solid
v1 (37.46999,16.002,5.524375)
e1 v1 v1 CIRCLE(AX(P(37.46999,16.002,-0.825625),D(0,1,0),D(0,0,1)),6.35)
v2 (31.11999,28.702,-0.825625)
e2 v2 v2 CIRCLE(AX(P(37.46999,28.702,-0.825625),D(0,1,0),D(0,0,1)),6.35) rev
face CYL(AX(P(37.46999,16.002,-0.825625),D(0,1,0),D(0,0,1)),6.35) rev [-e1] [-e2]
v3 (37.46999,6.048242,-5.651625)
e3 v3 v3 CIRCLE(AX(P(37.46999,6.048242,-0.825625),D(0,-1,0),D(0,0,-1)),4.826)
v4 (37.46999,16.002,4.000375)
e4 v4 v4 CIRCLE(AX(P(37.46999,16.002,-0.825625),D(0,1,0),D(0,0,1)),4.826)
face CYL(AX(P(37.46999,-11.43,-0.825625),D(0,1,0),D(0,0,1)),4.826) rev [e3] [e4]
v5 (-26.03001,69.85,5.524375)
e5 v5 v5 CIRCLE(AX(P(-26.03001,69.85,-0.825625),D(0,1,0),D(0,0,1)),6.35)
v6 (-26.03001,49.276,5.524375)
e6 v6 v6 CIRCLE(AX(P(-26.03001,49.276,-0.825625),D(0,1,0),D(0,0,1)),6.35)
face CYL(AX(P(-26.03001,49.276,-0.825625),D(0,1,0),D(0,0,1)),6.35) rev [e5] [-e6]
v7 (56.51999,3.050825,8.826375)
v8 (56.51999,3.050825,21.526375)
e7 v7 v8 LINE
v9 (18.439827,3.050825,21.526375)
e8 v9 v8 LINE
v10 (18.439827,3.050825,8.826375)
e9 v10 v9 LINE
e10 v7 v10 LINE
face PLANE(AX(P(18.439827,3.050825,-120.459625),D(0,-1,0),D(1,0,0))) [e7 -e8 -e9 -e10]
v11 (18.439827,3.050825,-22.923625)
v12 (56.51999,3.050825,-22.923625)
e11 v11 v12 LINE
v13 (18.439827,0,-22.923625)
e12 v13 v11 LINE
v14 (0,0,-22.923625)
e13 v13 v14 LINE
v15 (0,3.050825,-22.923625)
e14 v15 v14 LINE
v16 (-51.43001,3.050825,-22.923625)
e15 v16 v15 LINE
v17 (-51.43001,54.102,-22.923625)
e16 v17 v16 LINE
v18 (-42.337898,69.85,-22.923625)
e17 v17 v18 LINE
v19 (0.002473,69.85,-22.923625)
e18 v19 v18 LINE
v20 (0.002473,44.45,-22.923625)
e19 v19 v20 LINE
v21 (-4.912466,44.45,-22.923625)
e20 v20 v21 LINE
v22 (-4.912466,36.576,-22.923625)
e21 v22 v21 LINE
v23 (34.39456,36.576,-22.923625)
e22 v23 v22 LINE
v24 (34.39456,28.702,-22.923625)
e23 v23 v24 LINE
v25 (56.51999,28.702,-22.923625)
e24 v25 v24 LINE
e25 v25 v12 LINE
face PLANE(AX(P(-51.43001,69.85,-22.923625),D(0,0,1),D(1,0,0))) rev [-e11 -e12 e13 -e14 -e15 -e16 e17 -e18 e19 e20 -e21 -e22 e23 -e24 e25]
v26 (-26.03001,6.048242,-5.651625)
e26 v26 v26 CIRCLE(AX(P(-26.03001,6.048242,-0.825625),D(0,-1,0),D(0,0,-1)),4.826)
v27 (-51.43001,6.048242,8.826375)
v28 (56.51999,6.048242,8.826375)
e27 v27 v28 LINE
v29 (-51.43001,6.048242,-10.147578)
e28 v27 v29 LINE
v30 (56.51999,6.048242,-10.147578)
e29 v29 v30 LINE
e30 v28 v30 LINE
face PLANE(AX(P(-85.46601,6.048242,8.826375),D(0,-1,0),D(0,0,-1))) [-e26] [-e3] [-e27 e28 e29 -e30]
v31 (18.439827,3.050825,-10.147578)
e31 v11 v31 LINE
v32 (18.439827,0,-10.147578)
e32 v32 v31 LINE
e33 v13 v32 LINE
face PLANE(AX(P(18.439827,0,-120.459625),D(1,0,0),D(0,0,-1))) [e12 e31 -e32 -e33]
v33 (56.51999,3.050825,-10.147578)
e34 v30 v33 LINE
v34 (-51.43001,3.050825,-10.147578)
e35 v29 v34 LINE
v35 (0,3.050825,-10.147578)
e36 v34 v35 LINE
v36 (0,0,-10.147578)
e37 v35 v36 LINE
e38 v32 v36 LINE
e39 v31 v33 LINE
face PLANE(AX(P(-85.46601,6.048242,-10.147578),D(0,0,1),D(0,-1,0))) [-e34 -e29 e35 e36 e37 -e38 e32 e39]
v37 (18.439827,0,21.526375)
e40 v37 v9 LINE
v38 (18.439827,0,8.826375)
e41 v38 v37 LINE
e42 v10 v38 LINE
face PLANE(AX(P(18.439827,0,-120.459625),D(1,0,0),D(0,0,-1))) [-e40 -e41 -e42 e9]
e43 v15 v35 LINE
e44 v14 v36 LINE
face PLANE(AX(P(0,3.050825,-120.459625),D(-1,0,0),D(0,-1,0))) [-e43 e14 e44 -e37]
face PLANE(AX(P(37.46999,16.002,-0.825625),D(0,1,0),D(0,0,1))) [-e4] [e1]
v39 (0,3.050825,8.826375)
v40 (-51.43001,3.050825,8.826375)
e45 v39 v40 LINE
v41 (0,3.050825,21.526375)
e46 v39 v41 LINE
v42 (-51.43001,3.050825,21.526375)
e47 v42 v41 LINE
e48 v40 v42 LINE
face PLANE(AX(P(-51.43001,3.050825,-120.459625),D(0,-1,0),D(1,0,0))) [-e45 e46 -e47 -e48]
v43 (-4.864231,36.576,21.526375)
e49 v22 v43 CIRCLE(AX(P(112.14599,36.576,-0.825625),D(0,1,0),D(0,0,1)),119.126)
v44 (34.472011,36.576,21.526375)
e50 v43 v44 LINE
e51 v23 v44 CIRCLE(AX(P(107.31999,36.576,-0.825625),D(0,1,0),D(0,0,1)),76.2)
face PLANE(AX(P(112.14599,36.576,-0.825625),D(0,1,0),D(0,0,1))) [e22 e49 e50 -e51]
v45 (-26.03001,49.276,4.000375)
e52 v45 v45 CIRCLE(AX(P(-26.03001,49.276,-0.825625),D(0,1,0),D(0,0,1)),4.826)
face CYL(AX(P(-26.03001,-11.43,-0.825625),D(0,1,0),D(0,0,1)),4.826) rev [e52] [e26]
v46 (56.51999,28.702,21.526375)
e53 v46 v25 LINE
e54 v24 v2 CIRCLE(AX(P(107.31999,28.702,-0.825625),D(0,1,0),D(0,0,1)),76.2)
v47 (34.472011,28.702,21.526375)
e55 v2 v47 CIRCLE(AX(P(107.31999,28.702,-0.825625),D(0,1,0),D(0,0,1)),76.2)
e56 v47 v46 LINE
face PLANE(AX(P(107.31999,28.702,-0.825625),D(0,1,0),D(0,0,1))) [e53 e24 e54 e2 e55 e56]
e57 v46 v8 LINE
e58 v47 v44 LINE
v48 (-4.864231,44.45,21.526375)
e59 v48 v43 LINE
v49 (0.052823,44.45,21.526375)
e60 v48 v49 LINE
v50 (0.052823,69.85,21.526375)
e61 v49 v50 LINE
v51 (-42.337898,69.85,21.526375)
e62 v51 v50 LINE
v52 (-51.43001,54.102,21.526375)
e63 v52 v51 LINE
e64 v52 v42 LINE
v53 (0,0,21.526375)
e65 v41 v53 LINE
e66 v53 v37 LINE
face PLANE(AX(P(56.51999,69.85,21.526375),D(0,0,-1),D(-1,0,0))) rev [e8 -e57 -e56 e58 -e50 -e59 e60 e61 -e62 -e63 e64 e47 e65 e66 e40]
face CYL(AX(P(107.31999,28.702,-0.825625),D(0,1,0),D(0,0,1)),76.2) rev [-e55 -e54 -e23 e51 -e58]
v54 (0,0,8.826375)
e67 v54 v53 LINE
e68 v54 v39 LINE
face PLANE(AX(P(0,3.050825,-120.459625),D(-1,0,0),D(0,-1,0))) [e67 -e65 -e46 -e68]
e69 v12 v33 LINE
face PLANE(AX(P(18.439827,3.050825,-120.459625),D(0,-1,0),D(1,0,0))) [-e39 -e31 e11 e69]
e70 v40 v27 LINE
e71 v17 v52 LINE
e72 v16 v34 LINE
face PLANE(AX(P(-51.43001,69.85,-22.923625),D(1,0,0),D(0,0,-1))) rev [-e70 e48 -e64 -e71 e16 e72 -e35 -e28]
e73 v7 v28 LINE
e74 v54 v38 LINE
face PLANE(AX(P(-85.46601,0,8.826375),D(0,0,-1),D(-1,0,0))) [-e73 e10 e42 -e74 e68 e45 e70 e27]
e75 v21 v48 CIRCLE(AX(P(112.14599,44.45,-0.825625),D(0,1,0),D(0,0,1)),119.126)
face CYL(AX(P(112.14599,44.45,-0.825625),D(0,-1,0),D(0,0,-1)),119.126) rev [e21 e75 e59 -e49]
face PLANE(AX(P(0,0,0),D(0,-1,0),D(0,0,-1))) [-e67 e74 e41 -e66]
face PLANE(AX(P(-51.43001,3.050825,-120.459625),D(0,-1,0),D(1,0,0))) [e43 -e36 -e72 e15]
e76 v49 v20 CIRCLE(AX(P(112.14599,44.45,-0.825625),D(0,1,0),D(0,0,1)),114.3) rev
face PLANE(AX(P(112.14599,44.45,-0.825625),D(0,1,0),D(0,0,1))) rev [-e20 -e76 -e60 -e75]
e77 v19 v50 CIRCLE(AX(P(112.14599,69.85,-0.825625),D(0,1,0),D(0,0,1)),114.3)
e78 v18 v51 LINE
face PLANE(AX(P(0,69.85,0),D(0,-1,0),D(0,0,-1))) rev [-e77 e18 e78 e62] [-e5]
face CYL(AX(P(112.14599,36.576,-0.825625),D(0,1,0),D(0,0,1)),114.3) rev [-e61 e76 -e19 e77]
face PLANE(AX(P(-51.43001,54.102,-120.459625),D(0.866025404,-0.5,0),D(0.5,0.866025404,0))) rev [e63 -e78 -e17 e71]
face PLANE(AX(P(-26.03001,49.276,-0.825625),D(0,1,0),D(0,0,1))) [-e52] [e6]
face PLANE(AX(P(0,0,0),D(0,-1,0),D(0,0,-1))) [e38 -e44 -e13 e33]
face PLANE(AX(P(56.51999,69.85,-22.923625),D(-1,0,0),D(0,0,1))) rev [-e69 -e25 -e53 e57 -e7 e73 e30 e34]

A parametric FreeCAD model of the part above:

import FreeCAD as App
import Part
import Sketcher

V = App.Vector
Q = App.Units.Quantity

doc = App.newDocument("Part")
body = doc.addObject("PartDesign::Body", "Body")

sketch1 = body.newObject("Sketcher::SketchObject", "Sketch")
sketch1.AttachmentSupport = (doc.getObject("XZ_Plane"), [""])
sketch1.MapMode = "FlatFace"
sketch1.addGeometry(Part.LineSegment(V(-51, -23, 0), V(-51, 22, 0)), False)
sketch1.addGeometry(Part.LineSegment(V(-51, 22, 0), V(57, 22, 0)), False)
sketch1.addGeometry(Part.LineSegment(V(57, 22, 0), V(57, -23, 0)), False)
sketch1.addGeometry(Part.LineSegment(V(57, -23, 0), V(-51, -23, 0)), False)
sketch1.addConstraint(Sketcher.Constraint("Coincident", 0, 2, 1, 1))
sketch1.addConstraint(Sketcher.Constraint("Coincident", 1, 2, 2, 1))
sketch1.addConstraint(Sketcher.Constraint("Coincident", 2, 2, 3, 1))
sketch1.addConstraint(Sketcher.Constraint("Coincident", 3, 2, 0, 1))
sketch1.addConstraint(Sketcher.Constraint("Vertical", 0))
sketch1.addConstraint(Sketcher.Constraint("Horizontal", 1))
sketch1.addConstraint(Sketcher.Constraint("Vertical", 2))
sketch1.addConstraint(Sketcher.Constraint("Horizontal", 3))
sketch1.addConstraint(Sketcher.Constraint("DistanceX", 1, 1, 1, 2, Q("4.25 in")))
sketch1.addConstraint(Sketcher.Constraint("DistanceY", 0, 1, 0, 2, Q("1.75 in")))
sketch1.addConstraint(Sketcher.Constraint("DistanceX", 0, 2, -1, 1, Q("51.43001 mm")))
sketch1.addConstraint(Sketcher.Constraint("DistanceY", -1, 1, 0, 2, Q("21.526375 mm")))
pad1 = body.newObject("PartDesign::Pad", "Pad")
pad1.Profile = sketch1
pad1.Length = Q("2.75 in")
pad1.Reversed = True

sketch2 = body.newObject("Sketcher::SketchObject", "Sketch001")
sketch2.AttachmentSupport = (doc.getObject("YZ_Plane"), [""])
sketch2.MapMode = "FlatFace"
sketch2.AttachmentOffset = App.Placement(V(0, 0, 56.51999), App.Rotation())
sketch2.addGeometry(Part.LineSegment(V(6, 9, 0), V(0, 9, 0)), False)
sketch2.addGeometry(Part.LineSegment(V(0, 9, 0), V(0, -10, 0)), False)
sketch2.addGeometry(Part.LineSegment(V(0, -10, 0), V(6, -10, 0)), False)
sketch2.addGeometry(Part.LineSegment(V(6, -10, 0), V(6, 9, 0)), False)
sketch2.addConstraint(Sketcher.Constraint("Coincident", 0, 2, 1, 1))
sketch2.addConstraint(Sketcher.Constraint("Coincident", 1, 2, 2, 1))
sketch2.addConstraint(Sketcher.Constraint("Coincident", 2, 2, 3, 1))
sketch2.addConstraint(Sketcher.Constraint("Coincident", 3, 2, 0, 1))
sketch2.addConstraint(Sketcher.Constraint("Horizontal", 0))
sketch2.addConstraint(Sketcher.Constraint("Vertical", 1))
sketch2.addConstraint(Sketcher.Constraint("Horizontal", 2))
sketch2.addConstraint(Sketcher.Constraint("Vertical", 3))
sketch2.addConstraint(Sketcher.Constraint("PointOnObject", 0, 2, -2))
sketch2.addConstraint(Sketcher.Constraint("DistanceX", 0, 2, 0, 1, Q("6.048242 mm")))
sketch2.addConstraint(Sketcher.Constraint("DistanceY", 1, 2, 1, 1, Q("18.973953 mm")))
sketch2.addConstraint(Sketcher.Constraint("DistanceY", 1, 2, -1, 1, Q("10.147578 mm")))
pocket1 = body.newObject("PartDesign::Pocket", "Pocket")
pocket1.Profile = sketch2
pocket1.Length = Q("5.59 in")

sketch3 = body.newObject("Sketcher::SketchObject", "Sketch002")
sketch3.AttachmentSupport = (doc.getObject("XY_Plane"), [""])
sketch3.MapMode = "FlatFace"
sketch3.AttachmentOffset = App.Placement(V(0, 0, 21.526375), App.Rotation())
sketch3.addGeometry(Part.LineSegment(V(18.4, 3.1, 0), V(18.4, 0, 0)), False)
sketch3.addGeometry(Part.LineSegment(V(18.4, 0, 0), V(56.5, 0, 0)), False)
sketch3.addGeometry(Part.LineSegment(V(56.5, 0, 0), V(56.5, 3.1, 0)), False)
sketch3.addGeometry(Part.LineSegment(V(56.5, 3.1, 0), V(18.4, 3.1, 0)), False)
sketch3.addGeometry(Part.LineSegment(V(-51.4, 3.1, 0), V(-51.4, 0, 0)), False)
sketch3.addGeometry(Part.LineSegment(V(-51.4, 0, 0), V(0, 0, 0)), False)
sketch3.addGeometry(Part.LineSegment(V(0, 0, 0), V(0, 3.1, 0)), False)
sketch3.addGeometry(Part.LineSegment(V(0, 3.1, 0), V(-51.4, 3.1, 0)), False)
sketch3.addConstraint(Sketcher.Constraint("Coincident", 0, 2, 1, 1))
sketch3.addConstraint(Sketcher.Constraint("Coincident", 1, 2, 2, 1))
sketch3.addConstraint(Sketcher.Constraint("Coincident", 2, 2, 3, 1))
sketch3.addConstraint(Sketcher.Constraint("Coincident", 3, 2, 0, 1))
sketch3.addConstraint(Sketcher.Constraint("Coincident", 4, 2, 5, 1))
sketch3.addConstraint(Sketcher.Constraint("Coincident", 5, 2, 6, 1))
sketch3.addConstraint(Sketcher.Constraint("Coincident", 6, 2, 7, 1))
sketch3.addConstraint(Sketcher.Constraint("Coincident", 7, 2, 4, 1))
sketch3.addConstraint(Sketcher.Constraint("Vertical", 0))
sketch3.addConstraint(Sketcher.Constraint("Horizontal", 1))
sketch3.addConstraint(Sketcher.Constraint("Vertical", 2))
sketch3.addConstraint(Sketcher.Constraint("Horizontal", 3))
sketch3.addConstraint(Sketcher.Constraint("Vertical", 4))
sketch3.addConstraint(Sketcher.Constraint("Horizontal", 5))
sketch3.addConstraint(Sketcher.Constraint("Vertical", 6))
sketch3.addConstraint(Sketcher.Constraint("Horizontal", 7))
sketch3.addConstraint(Sketcher.Constraint("Coincident", 5, 2, -1, 1))
sketch3.addConstraint(Sketcher.Constraint("PointOnObject", 0, 2, -1))
sketch3.addConstraint(Sketcher.Constraint("Horizontal", 3, 2, 6, 2))
sketch3.addConstraint(Sketcher.Constraint("DistanceX", 4, 2, 1, 2, Q("4.25 in")))
sketch3.addConstraint(Sketcher.Constraint("DistanceX", 5, 1, 5, 2, Q("51.43001 mm")))
sketch3.addConstraint(Sketcher.Constraint("DistanceX", 1, 1, 1, 2, Q("38.080163 mm")))
sketch3.addConstraint(Sketcher.Constraint("DistanceY", 0, 2, 0, 1, Q("3.050825 mm")))
pocket2 = body.newObject("PartDesign::Pocket", "Pocket001")
pocket2.Profile = sketch3
pocket2.Length = Q("5.59 in")

sketch4 = body.newObject("Sketcher::SketchObject", "Sketch003")
sketch4.AttachmentSupport = (doc.getObject("XY_Plane"), [""])
sketch4.MapMode = "FlatFace"
sketch4.AttachmentOffset = App.Placement(V(0, 0, 21.526375), App.Rotation())
sketch4.addGeometry(Part.LineSegment(V(-51, 54, 0), V(-42, 70, 0)), False)
sketch4.addGeometry(Part.LineSegment(V(-42, 70, 0), V(-51, 70, 0)), False)
sketch4.addGeometry(Part.LineSegment(V(-51, 70, 0), V(-51, 54, 0)), False)
sketch4.addConstraint(Sketcher.Constraint("Coincident", 0, 2, 1, 1))
sketch4.addConstraint(Sketcher.Constraint("Coincident", 1, 2, 2, 1))
sketch4.addConstraint(Sketcher.Constraint("Coincident", 2, 2, 0, 1))
sketch4.addConstraint(Sketcher.Constraint("Horizontal", 1))
sketch4.addConstraint(Sketcher.Constraint("Vertical", 2))
sketch4.addConstraint(Sketcher.Constraint("Angle", 0, Q("60 deg")))
sketch4.addConstraint(Sketcher.Constraint("DistanceY", 2, 2, 2, 1, Q("0.62 in")))
sketch4.addConstraint(Sketcher.Constraint("DistanceY", -1, 1, 0, 2, Q("2.75 in")))
sketch4.addConstraint(Sketcher.Constraint("DistanceX", 1, 2, -1, 1, Q("51.43001 mm")))
pocket3 = body.newObject("PartDesign::Pocket", "Pocket002")
pocket3.Profile = sketch4
pocket3.Length = Q("5.59 in")

sketch5 = body.newObject("Sketcher::SketchObject", "Sketch004")
sketch5.AttachmentSupport = (doc.getObject("XZ_Plane"), [""])
sketch5.MapMode = "FlatFace"
sketch5.AttachmentOffset = App.Placement(V(0, 0, -2.75 * 25.4), App.Rotation())
sketch5.addGeometry(Part.Circle(V(112, -1, 0), V(0, 0, 1), 114), False)
sketch5.addConstraint(Sketcher.Constraint("Diameter", 0, Q("9 in")))
sketch5.addConstraint(Sketcher.Constraint("DistanceX", -1, 1, 0, 3, Q("112.14599 mm")))
sketch5.addConstraint(Sketcher.Constraint("DistanceY", 0, 3, -1, 1, Q("0.825625 mm")))
pocket4 = body.newObject("PartDesign::Pocket", "Pocket003")
pocket4.Profile = sketch5
pocket4.Length = Q("1.31 in")
pocket4.Reversed = True

sketch6 = body.newObject("Sketcher::SketchObject", "Sketch005")
sketch6.AttachmentSupport = (doc.getObject("XZ_Plane"), [""])
sketch6.MapMode = "FlatFace"
sketch6.AttachmentOffset = App.Placement(V(0, 0, -1.44 * 25.4), App.Rotation())
sketch6.addGeometry(Part.Circle(V(112, -1, 0), V(0, 0, 1), 119), False)
sketch6.addConstraint(Sketcher.Constraint("Diameter", 0, Q("9.38 in")))
sketch6.addConstraint(Sketcher.Constraint("DistanceX", -1, 1, 0, 3, Q("112.14599 mm")))
sketch6.addConstraint(Sketcher.Constraint("DistanceY", 0, 3, -1, 1, Q("0.825625 mm")))
pocket5 = body.newObject("PartDesign::Pocket", "Pocket004")
pocket5.Profile = sketch6
pocket5.Length = Q("0.31 in")

sketch7 = body.newObject("Sketcher::SketchObject", "Sketch006")
sketch7.AttachmentSupport = (doc.getObject("XZ_Plane"), [""])
sketch7.MapMode = "FlatFace"
sketch7.AttachmentOffset = App.Placement(V(0, 0, -1.44 * 25.4), App.Rotation())
sketch7.addGeometry(Part.Circle(V(37, -1, 0), V(0, 0, 1), 6), False)
sketch7.addConstraint(Sketcher.Constraint("Diameter", 0, Q("0.5 in")))
sketch7.addConstraint(Sketcher.Constraint("DistanceX", -1, 1, 0, 3, Q("37.46999 mm")))
sketch7.addConstraint(Sketcher.Constraint("DistanceY", 0, 3, -1, 1, Q("0.825625 mm")))
pocket6 = body.newObject("PartDesign::Pocket", "Pocket005")
pocket6.Profile = sketch7
pocket6.Length = Q("0.81 in")
pocket6.Reversed = True

sketch8 = body.newObject("Sketcher::SketchObject", "Sketch007")
sketch8.AttachmentSupport = (doc.getObject("XZ_Plane"), [""])
sketch8.MapMode = "FlatFace"
sketch8.AttachmentOffset = App.Placement(V(0, 0, -1.44 * 25.4), App.Rotation())
sketch8.addGeometry(Part.Circle(V(107, -1, 0), V(0, 0, 1), 76), False)
sketch8.addConstraint(Sketcher.Constraint("Diameter", 0, Q("6 in")))
sketch8.addConstraint(Sketcher.Constraint("DistanceX", -1, 1, 0, 3, Q("107.31999 mm")))
sketch8.addConstraint(Sketcher.Constraint("DistanceY", 0, 3, -1, 1, Q("0.825625 mm")))
pocket7 = body.newObject("PartDesign::Pocket", "Pocket006")
pocket7.Profile = sketch8
pocket7.Length = Q("0.31 in")
pocket7.Reversed = True

sketch9 = body.newObject("Sketcher::SketchObject", "Sketch008")
sketch9.AttachmentSupport = (doc.getObject("XZ_Plane"), [""])
sketch9.MapMode = "FlatFace"
sketch9.AttachmentOffset = App.Placement(V(0, 0, -2.75 * 25.4), App.Rotation())
sketch9.addGeometry(Part.Circle(V(-26, -1, 0), V(0, 0, 1), 6), False)
sketch9.addConstraint(Sketcher.Constraint("Diameter", 0, Q("0.5 in")))
sketch9.addConstraint(Sketcher.Constraint("DistanceX", 0, 3, -1, 1, Q("26.03001 mm")))
sketch9.addConstraint(Sketcher.Constraint("DistanceY", 0, 3, -1, 1, Q("0.825625 mm")))
pocket8 = body.newObject("PartDesign::Pocket", "Pocket007")
pocket8.Profile = sketch9
pocket8.Length = Q("0.81 in")
pocket8.Reversed = True

sketch10 = body.newObject("Sketcher::SketchObject", "Sketch009")
sketch10.AttachmentSupport = (doc.getObject("XZ_Plane"), [""])
sketch10.MapMode = "FlatFace"
sketch10.AttachmentOffset = App.Placement(V(0, 0, -2.75 * 25.4), App.Rotation())
sketch10.addGeometry(Part.Circle(V(-26, -0.8, 0), V(0, 0, 1), 4.8), False)
sketch10.addGeometry(Part.Circle(V(37.5, -0.8, 0), V(0, 0, 1), 4.8), False)
sketch10.addConstraint(Sketcher.Constraint("Equal", 0, 1))
sketch10.addConstraint(Sketcher.Constraint("Horizontal", 0, 3, 1, 3))
sketch10.addConstraint(Sketcher.Constraint("Diameter", 0, Q("0.38 in")))
sketch10.addConstraint(Sketcher.Constraint("DistanceX", 0, 3, 1, 3, Q("2.5 in")))
sketch10.addConstraint(Sketcher.Constraint("DistanceX", 0, 3, -1, 1, Q("26.03001 mm")))
sketch10.addConstraint(Sketcher.Constraint("DistanceY", 0, 3, -1, 1, Q("0.825625 mm")))
pocket9 = body.newObject("PartDesign::Pocket", "Pocket008")
pocket9.Profile = sketch10
pocket9.Length = Q("3.2 in")
pocket9.Reversed = True

doc.recompute()
